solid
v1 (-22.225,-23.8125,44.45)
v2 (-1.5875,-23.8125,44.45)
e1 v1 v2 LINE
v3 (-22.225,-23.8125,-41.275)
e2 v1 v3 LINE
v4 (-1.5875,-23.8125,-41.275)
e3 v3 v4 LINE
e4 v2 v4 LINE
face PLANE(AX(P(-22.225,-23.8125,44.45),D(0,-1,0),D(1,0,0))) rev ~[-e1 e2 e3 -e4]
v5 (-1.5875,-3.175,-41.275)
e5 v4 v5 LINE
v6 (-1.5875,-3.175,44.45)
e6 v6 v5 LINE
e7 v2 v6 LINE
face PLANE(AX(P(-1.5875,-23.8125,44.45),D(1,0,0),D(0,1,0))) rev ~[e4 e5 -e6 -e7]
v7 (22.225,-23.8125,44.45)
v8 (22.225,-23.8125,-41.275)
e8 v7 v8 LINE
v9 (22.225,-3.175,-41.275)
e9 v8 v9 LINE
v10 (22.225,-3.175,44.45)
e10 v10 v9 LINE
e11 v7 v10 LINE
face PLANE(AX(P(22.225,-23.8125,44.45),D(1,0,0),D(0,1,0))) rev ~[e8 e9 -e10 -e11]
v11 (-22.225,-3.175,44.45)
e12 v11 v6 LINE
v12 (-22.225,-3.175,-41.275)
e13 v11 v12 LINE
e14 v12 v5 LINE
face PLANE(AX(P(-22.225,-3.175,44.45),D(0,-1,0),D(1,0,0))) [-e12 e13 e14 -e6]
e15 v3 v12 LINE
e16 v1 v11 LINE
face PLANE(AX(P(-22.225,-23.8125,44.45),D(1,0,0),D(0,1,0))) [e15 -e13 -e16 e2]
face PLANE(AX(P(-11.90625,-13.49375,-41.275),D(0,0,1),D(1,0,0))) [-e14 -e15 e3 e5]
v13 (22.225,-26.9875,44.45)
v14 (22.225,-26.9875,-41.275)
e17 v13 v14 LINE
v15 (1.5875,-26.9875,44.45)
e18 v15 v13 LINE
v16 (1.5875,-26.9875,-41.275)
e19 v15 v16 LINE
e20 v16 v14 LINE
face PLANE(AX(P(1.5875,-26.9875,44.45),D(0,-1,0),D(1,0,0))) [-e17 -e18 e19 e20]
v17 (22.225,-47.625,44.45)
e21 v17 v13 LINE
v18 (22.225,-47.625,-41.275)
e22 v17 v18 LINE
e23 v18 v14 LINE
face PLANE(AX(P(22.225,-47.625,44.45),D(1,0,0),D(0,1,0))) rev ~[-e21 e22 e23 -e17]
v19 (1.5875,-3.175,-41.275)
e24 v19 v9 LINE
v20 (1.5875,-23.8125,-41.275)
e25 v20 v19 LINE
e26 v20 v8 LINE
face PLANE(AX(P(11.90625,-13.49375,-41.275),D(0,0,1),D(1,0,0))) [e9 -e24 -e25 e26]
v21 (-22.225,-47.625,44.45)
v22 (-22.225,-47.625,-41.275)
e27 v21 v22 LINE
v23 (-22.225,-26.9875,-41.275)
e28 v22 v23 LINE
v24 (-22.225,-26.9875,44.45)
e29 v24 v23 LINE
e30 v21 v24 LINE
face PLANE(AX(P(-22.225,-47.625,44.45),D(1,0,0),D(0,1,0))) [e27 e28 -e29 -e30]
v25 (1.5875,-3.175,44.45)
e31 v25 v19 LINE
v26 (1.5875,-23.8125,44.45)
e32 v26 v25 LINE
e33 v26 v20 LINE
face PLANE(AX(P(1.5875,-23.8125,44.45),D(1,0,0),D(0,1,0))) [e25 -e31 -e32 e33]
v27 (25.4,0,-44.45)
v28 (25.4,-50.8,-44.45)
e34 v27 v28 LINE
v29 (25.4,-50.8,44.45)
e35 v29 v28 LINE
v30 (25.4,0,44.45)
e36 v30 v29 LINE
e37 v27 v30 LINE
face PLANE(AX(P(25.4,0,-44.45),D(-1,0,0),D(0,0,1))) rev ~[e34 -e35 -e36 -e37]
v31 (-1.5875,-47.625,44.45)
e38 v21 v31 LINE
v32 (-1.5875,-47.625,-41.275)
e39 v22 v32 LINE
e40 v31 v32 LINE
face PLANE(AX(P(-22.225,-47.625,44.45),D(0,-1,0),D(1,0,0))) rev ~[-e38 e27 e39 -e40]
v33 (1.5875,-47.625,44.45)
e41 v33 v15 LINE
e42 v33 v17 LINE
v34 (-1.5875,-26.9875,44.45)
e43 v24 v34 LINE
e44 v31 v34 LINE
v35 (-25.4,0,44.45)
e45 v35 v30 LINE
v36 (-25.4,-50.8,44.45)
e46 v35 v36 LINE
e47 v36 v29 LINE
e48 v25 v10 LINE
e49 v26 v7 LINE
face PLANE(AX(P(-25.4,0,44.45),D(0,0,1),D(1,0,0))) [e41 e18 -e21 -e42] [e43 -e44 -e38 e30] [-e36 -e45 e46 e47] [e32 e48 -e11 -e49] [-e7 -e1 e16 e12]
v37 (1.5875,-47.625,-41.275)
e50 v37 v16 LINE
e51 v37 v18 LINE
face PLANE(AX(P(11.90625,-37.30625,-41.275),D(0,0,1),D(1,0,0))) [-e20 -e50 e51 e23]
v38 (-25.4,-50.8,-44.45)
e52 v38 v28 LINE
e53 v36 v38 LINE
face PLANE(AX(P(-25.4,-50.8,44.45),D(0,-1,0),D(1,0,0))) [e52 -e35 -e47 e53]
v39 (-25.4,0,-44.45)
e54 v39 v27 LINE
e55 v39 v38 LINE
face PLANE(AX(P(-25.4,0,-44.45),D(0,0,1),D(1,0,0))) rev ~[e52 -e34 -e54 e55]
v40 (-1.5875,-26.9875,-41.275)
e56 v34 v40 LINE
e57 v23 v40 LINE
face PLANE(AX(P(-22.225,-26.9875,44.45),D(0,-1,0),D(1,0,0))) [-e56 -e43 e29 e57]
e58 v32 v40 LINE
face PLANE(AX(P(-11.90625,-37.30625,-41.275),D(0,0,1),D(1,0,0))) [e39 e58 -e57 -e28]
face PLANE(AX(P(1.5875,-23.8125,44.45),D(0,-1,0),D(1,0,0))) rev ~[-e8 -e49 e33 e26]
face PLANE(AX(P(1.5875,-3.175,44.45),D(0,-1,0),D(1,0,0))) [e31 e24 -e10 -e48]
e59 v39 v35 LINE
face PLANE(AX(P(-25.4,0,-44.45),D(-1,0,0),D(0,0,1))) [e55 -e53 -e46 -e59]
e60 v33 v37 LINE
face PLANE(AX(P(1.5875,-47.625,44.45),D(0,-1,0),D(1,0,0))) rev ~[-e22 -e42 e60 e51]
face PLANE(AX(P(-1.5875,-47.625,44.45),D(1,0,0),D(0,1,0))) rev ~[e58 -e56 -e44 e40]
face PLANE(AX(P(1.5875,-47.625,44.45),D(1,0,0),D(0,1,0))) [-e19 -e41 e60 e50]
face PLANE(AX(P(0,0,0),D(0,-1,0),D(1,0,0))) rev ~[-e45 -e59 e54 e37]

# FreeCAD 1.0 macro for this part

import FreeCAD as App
import Part
import Sketcher
Q = App.Units.Quantity

doc = App.newDocument("Part")
body = doc.addObject("PartDesign::Body", "Body")

# Sketch on XZ plane
sketch1 = body.newObject("Sketcher::SketchObject", "Sketch")
sketch1.AttachmentSupport = (doc.getObject("XZ_Plane"), [""])
sketch1.MapMode = "FlatFace"
sketch1.addGeometry([
    Part.LineSegment(App.Vector(-25.4, 44.45, 0), App.Vector(-25.4, -44.45, 0)),
    Part.LineSegment(App.Vector(-25.4, -44.45, 0), App.Vector(25.4, -44.45, 0)),
    Part.LineSegment(App.Vector(25.4, -44.45, 0), App.Vector(25.4, 44.45, 0)),
    Part.LineSegment(App.Vector(25.4, 44.45, 0), App.Vector(-25.4, 44.45, 0)),
], False)
sketch1.addConstraint([
    Sketcher.Constraint("Coincident", 0, 2, 1, 1),
    Sketcher.Constraint("Coincident", 1, 2, 2, 1),
    Sketcher.Constraint("Coincident", 2, 2, 3, 1),
    Sketcher.Constraint("Coincident", 3, 2, 0, 1),
    Sketcher.Constraint("Vertical", 0),
    Sketcher.Constraint("Horizontal", 1),
    Sketcher.Constraint("Vertical", 2),
    Sketcher.Constraint("Horizontal", 3),
    Sketcher.Constraint("Symmetric", 0, 2, 2, 2, -1, 1),
    Sketcher.Constraint("DistanceX", 1, 1, 1, 2, Q("2 in")),
    Sketcher.Constraint("DistanceY", 0, 2, 0, 1, Q("3.5 in")),
])
pad1 = body.newObject("PartDesign::Pad", "Pad")
pad1.Profile = sketch1
pad1.Length = Q("2.25 in")

# Sketch on XY plane
sketch2 = body.newObject("Sketcher::SketchObject", "Sketch001")
sketch2.AttachmentSupport = (doc.getObject("XY_Plane"), [""])
sketch2.MapMode = "FlatFace"
sketch2.AttachmentOffset = App.Placement(App.Vector(0, 0, 1.75 * 25.4), App.Rotation())
sketch2.addGeometry([
    Part.LineSegment(App.Vector(-22.225, -3.175, 0), App.Vector(-22.225, -23.8125, 0)),
    Part.LineSegment(App.Vector(-22.225, -23.8125, 0), App.Vector(-1.5875, -23.8125, 0)),
    Part.LineSegment(App.Vector(-1.5875, -23.8125, 0), App.Vector(-1.5875, -3.175, 0)),
    Part.LineSegment(App.Vector(-1.5875, -3.175, 0), App.Vector(-22.225, -3.175, 0)),
], False)
sketch2.addConstraint([
    Sketcher.Constraint("Coincident", 0, 2, 1, 1),
    Sketcher.Constraint("Coincident", 1, 2, 2, 1),
    Sketcher.Constraint("Coincident", 2, 2, 3, 1),
    Sketcher.Constraint("Coincident", 3, 2, 0, 1),
    Sketcher.Constraint("Vertical", 0),
    Sketcher.Constraint("Horizontal", 1),
    Sketcher.Constraint("Vertical", 2),
    Sketcher.Constraint("Horizontal", 3),
    Sketcher.Constraint("Equal", 3, 0),
    Sketcher.Constraint("DistanceX", 1, 1, 1, 2, Q("0.8125 in")),
    Sketcher.Constraint("DistanceX", 0, 2, -1, 1, Q("0.875 in")),
    Sketcher.Constraint("DistanceY", 0, 2, -1, 1, Q("0.9375 in")),
])
pocket1 = body.newObject("PartDesign::Pocket", "Pocket")
pocket1.Profile = sketch2
pocket1.Length = Q("3.375 in")

# Sketch on XY plane
sketch3 = body.newObject("Sketcher::SketchObject", "Sketch002")
sketch3.AttachmentSupport = (doc.getObject("XY_Plane"), [""])
sketch3.MapMode = "FlatFace"
sketch3.AttachmentOffset = App.Placement(App.Vector(0, 0, 1.75 * 25.4), App.Rotation())
sketch3.addGeometry([
    Part.LineSegment(App.Vector(1.5875, -3.175, 0), App.Vector(1.5875, -23.8125, 0)),
    Part.LineSegment(App.Vector(1.5875, -23.8125, 0), App.Vector(22.225, -23.8125, 0)),
    Part.LineSegment(App.Vector(22.225, -23.8125, 0), App.Vector(22.225, -3.175, 0)),
    Part.LineSegment(App.Vector(22.225, -3.175, 0), App.Vector(1.5875, -3.175, 0)),
], False)
sketch3.addConstraint([
    Sketcher.Constraint("Coincident", 0, 2, 1, 1),
    Sketcher.Constraint("Coincident", 1, 2, 2, 1),
    Sketcher.Constraint("Coincident", 2, 2, 3, 1),
    Sketcher.Constraint("Coincident", 3, 2, 0, 1),
    Sketcher.Constraint("Vertical", 0),
    Sketcher.Constraint("Horizontal", 1),
    Sketcher.Constraint("Vertical", 2),
    Sketcher.Constraint("Horizontal", 3),
    Sketcher.Constraint("Equal", 3, 0),
    Sketcher.Constraint("DistanceX", 1, 1, 1, 2, Q("0.8125 in")),
    Sketcher.Constraint("DistanceX", -1, 1, 0, 2, Q("0.0625 in")),
    Sketcher.Constraint("DistanceY", 0, 2, -1, 1, Q("0.9375 in")),
])
pocket2 = body.newObject("PartDesign::Pocket", "Pocket001")
pocket2.Profile = sketch3
pocket2.Length = Q("3.375 in")

# Sketch on XY plane
sketch4 = body.newObject("Sketcher::SketchObject", "Sketch003")
sketch4.AttachmentSupport = (doc.getObject("XY_Plane"), [""])
sketch4.MapMode = "FlatFace"
sketch4.AttachmentOffset = App.Placement(App.Vector(0, 0, 1.75 * 25.4), App.Rotation())
sketch4.addGeometry([
    Part.LineSegment(App.Vector(-22.225, -26.9875, 0), App.Vector(-22.225, -47.625, 0)),
    Part.LineSegment(App.Vector(-22.225, -47.625, 0), App.Vector(-1.5875, -47.625, 0)),
    Part.LineSegment(App.Vector(-1.5875, -47.625, 0), App.Vector(-1.5875, -26.9875, 0)),
    Part.LineSegment(App.Vector(-1.5875, -26.9875, 0), App.Vector(-22.225, -26.9875, 0)),
], False)
sketch4.addConstraint([
    Sketcher.Constraint("Coincident", 0, 2, 1, 1),
    Sketcher.Constraint("Coincident", 1, 2, 2, 1),
    Sketcher.Constraint("Coincident", 2, 2, 3, 1),
    Sketcher.Constraint("Coincident", 3, 2, 0, 1),
    Sketcher.Constraint("Vertical", 0),
    Sketcher.Constraint("Horizontal", 1),
    Sketcher.Constraint("Vertical", 2),
    Sketcher.Constraint("Horizontal", 3),
    Sketcher.Constraint("Equal", 3, 0),
    Sketcher.Constraint("DistanceX", 1, 1, 1, 2, Q("0.8125 in")),
    Sketcher.Constraint("DistanceX", 0, 2, -1, 1, Q("0.875 in")),
    Sketcher.Constraint("DistanceY", 0, 2, -1, 1, Q("1.875 in")),
])
pocket3 = body.newObject("PartDesign::Pocket", "Pocket002")
pocket3.Profile = sketch4
pocket3.Length = Q("3.375 in")

# Sketch on XY plane
sketch5 = body.newObject("Sketcher::SketchObject", "Sketch004")
sketch5.AttachmentSupport = (doc.getObject("XY_Plane"), [""])
sketch5.MapMode = "FlatFace"
sketch5.AttachmentOffset = App.Placement(App.Vector(0, 0, 1.75 * 25.4), App.Rotation())
sketch5.addGeometry([
    Part.LineSegment(App.Vector(1.5875, -26.9875, 0), App.Vector(1.5875, -47.625, 0)),
    Part.LineSegment(App.Vector(1.5875, -47.625, 0), App.Vector(22.225, -47.625, 0)),
    Part.LineSegment(App.Vector(22.225, -47.625, 0), App.Vector(22.225, -26.9875, 0)),
    Part.LineSegment(App.Vector(22.225, -26.9875, 0), App.Vector(1.5875, -26.9875, 0)),
], False)
sketch5.addConstraint([
    Sketcher.Constraint("Coincident", 0, 2, 1, 1),
    Sketcher.Constraint("Coincident", 1, 2, 2, 1),
    Sketcher.Constraint("Coincident", 2, 2, 3, 1),
    Sketcher.Constraint("Coincident", 3, 2, 0, 1),
    Sketcher.Constraint("Vertical", 0),
    Sketcher.Constraint("Horizontal", 1),
    Sketcher.Constraint("Vertical", 2),
    Sketcher.Constraint("Horizontal", 3),
    Sketcher.Constraint("Equal", 3, 0),
    Sketcher.Constraint("DistanceX", 1, 1, 1, 2, Q("0.8125 in")),
    Sketcher.Constraint("DistanceX", -1, 1, 0, 2, Q("0.0625 in")),
    Sketcher.Constraint("DistanceY", 0, 2, -1, 1, Q("1.875 in")),
])
pocket4 = body.newObject("PartDesign::Pocket", "Pocket003")
pocket4.Profile = sketch5
pocket4.Length = Q("3.375 in")

# Sketch on XY plane
sketch6 = body.newObject("Sketcher::SketchObject", "Sketch005")
sketch6.AttachmentSupport = (doc.getObject("XY_Plane"), [""])
sketch6.MapMode = "FlatFace"
sketch6.AttachmentOffset = App.Placement(App.Vector(0, 0, 1.75 * 25.4), App.Rotation())
sketch6.addGeometry([
    Part.LineSegment(App.Vector(-25.4, -50.8, 0), App.Vector(-25.4, -57.15, 0)),
    Part.LineSegment(App.Vector(-25.4, -57.15, 0), App.Vector(25.4, -57.15, 0)),
    Part.LineSegment(App.Vector(25.4, -57.15, 0), App.Vector(25.4, -50.8, 0)),
    Part.LineSegment(App.Vector(25.4, -50.8, 0), App.Vector(-25.4, -50.8, 0)),
], False)
sketch6.addConstraint([
    Sketcher.Constraint("Coincident", 0, 2, 1, 1),
    Sketcher.Constraint("Coincident", 1, 2, 2, 1),
    Sketcher.Constraint("Coincident", 2, 2, 3, 1),
    Sketcher.Constraint("Coincident", 3, 2, 0, 1),
    Sketcher.Constraint("Vertical", 0),
    Sketcher.Constraint("Horizontal", 1),
    Sketcher.Constraint("Vertical", 2),
    Sketcher.Constraint("Horizontal", 3),
    Sketcher.Constraint("DistanceX", 1, 1, 1, 2, Q("2 in")),
    Sketcher.Constraint("DistanceX", 0, 2, -1, 1, Q("1 in")),
    Sketcher.Constraint("DistanceY", 2, 2, -1, 1, Q("2 in")),
    Sketcher.Constraint("DistanceY", 0, 2, 0, 1, Q("0.25 in")),
])
pocket5 = body.newObject("PartDesign::Pocket", "Pocket004")
pocket5.Profile = sketch6
pocket5.Length = Q("3.5 in")

doc.recompute()
